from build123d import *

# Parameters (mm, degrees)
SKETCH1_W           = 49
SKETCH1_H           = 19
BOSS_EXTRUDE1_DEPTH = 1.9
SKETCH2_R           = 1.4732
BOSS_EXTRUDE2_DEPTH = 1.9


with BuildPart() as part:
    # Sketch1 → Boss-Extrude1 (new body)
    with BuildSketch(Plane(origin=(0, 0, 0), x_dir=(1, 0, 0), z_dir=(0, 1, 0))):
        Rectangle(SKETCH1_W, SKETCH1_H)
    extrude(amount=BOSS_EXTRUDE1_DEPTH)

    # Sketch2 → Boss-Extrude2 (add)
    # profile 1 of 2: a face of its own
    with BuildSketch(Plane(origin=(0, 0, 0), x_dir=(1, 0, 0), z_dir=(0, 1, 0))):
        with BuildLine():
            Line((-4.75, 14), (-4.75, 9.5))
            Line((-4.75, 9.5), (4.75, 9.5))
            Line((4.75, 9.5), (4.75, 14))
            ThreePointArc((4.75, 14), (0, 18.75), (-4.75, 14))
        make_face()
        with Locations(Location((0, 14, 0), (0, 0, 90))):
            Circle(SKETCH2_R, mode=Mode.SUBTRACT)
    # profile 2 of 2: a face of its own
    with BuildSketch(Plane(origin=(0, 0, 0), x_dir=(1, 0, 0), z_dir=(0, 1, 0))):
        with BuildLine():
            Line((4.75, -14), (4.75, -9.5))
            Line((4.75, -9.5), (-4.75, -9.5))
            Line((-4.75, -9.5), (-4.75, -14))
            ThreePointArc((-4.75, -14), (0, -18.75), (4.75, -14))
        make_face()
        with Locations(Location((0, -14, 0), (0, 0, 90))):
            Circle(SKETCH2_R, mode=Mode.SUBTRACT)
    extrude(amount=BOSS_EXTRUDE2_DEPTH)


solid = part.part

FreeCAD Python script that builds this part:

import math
import FreeCAD as App
import Part
import Sketcher
from FreeCAD import Vector
Q = App.Units.Quantity

doc = App.newDocument("Part")
body = doc.addObject("PartDesign::Body", "Body")

sketch1 = body.newObject("Sketcher::SketchObject", "Sketch")
sketch1.AttachmentSupport = (doc.getObject("XZ_Plane"), [""])
sketch1.MapMode = "FlatFace"
sketch1.addGeometry([
    Part.LineSegment(Vector(-24, -10, 0), Vector(-24, 10, 0)),
    Part.LineSegment(Vector(-24, 10, 0), Vector(24, 10, 0)),
    Part.LineSegment(Vector(24, 10, 0), Vector(24, -10, 0)),
    Part.LineSegment(Vector(24, -10, 0), Vector(-24, -10, 0)),
], False)
sketch1.addConstraint([
    Sketcher.Constraint("Coincident", 0, 2, 1, 1),
    Sketcher.Constraint("Coincident", 1, 2, 2, 1),
    Sketcher.Constraint("Coincident", 2, 2, 3, 1),
    Sketcher.Constraint("Coincident", 3, 2, 0, 1),
    Sketcher.Constraint("Vertical", 0),
    Sketcher.Constraint("Horizontal", 1),
    Sketcher.Constraint("Vertical", 2),
    Sketcher.Constraint("Horizontal", 3),
    Sketcher.Constraint("Symmetric", 0, 2, 2, 2, -1, 1),
    Sketcher.Constraint("DistanceX", 1, 1, 1, 2, Q("49 mm")),
    Sketcher.Constraint("DistanceY", 0, 1, 0, 2, Q("19 mm")),
])
pad1 = body.newObject("PartDesign::Pad", "Pad")
pad1.Profile = sketch1
pad1.Length = 1.9
pad1.Reversed = True

sketch2 = body.newObject("Sketcher::SketchObject", "Sketch001")
sketch2.AttachmentSupport = (doc.getObject("XZ_Plane"), [""])
sketch2.MapMode = "FlatFace"
sketch2.addGeometry([
    Part.LineSegment(Vector(-4.8, -14, 0), Vector(-4.8, -9.5, 0)),
    Part.LineSegment(Vector(-4.8, -9.5, 0), Vector(4.8, -9.5, 0)),
    Part.LineSegment(Vector(4.8, -9.5, 0), Vector(4.8, -14, 0)),
    Part.ArcOfCircle(Part.Circle(Vector(0, -14, 0), Vector(0, 0, 1), 4.8), math.radians(180), math.radians(360)),
    Part.Circle(Vector(0, -14, 0), Vector(0, 0, 1), 1.5),
    Part.LineSegment(Vector(4.8, 14, 0), Vector(4.8, 9.5, 0)),
    Part.LineSegment(Vector(4.8, 9.5, 0), Vector(-4.8, 9.5, 0)),
    Part.LineSegment(Vector(-4.8, 9.5, 0), Vector(-4.8, 14, 0)),
    Part.ArcOfCircle(Part.Circle(Vector(0, 14, 0), Vector(0, 0, 1), 4.8), math.radians(0), math.radians(180)),
    Part.Circle(Vector(0, 14, 0), Vector(0, 0, 1), 1.5),
], False)
sketch2.addConstraint([
    Sketcher.Constraint("Coincident", 0, 2, 1, 1),
    Sketcher.Constraint("Coincident", 1, 2, 2, 1),
    Sketcher.Constraint("Tangent", 2, 2, 3, 2),
    Sketcher.Constraint("Tangent", 3, 1, 0, 1),
    Sketcher.Constraint("Coincident", 5, 2, 6, 1),
    Sketcher.Constraint("Coincident", 6, 2, 7, 1),
    Sketcher.Constraint("Tangent", 7, 2, 8, 2),
    Sketcher.Constraint("Tangent", 8, 1, 5, 1),
    Sketcher.Constraint("Vertical", 0),
    Sketcher.Constraint("Horizontal", 1),
    Sketcher.Constraint("Vertical", 2),
    Sketcher.Constraint("Vertical", 5),
    Sketcher.Constraint("Horizontal", 6),
    Sketcher.Constraint("Vertical", 7),
    Sketcher.Constraint("Coincident", 4, 3, 3, 3),
    Sketcher.Constraint("Coincident", 9, 3, 8, 3),
    Sketcher.Constraint("Equal", 3, 8),
    Sketcher.Constraint("Equal", 4, 9),
    Sketcher.Constraint("Symmetric", 3, 3, 8, 3, -1, 1),
    Sketcher.Constraint("Symmetric", 1, 2, 5, 2, -1),
    Sketcher.Constraint("Radius", 3, Q("4.75 mm")),
    Sketcher.Constraint("DistanceY", 0, 1, 0, 2, Q("4.5 mm")),
    Sketcher.Constraint("DistanceY", 3, 3, -1, 1, Q("14 mm")),
    Sketcher.Constraint("Diameter", 4, Q("2.9464 mm")),
])
pad2 = body.newObject("PartDesign::Pad", "Pad001")
pad2.Profile = sketch2
pad2.Length = 1.9
pad2.Reversed = True

doc.recompute()
